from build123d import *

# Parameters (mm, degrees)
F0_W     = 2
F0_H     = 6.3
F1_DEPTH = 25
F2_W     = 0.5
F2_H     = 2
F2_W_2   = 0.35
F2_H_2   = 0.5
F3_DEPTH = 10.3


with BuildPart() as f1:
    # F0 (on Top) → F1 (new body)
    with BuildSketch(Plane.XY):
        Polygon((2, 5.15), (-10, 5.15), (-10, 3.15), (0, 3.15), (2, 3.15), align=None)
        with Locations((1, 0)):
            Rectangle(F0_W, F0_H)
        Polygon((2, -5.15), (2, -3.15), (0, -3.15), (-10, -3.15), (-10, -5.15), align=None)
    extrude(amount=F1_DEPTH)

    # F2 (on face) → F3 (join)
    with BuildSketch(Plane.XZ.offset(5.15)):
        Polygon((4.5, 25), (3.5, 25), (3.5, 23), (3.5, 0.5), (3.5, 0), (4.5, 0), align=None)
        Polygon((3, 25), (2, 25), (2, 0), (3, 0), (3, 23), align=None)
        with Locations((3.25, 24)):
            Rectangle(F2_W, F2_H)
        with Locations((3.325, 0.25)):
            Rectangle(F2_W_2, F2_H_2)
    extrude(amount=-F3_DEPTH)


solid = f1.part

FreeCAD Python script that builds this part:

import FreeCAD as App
import Part
import Sketcher
Q = App.Units.Quantity


def add_polygon(sketch, points):
    """Adds a closed chain of lines whose ends are joined by coincident constraints."""
    first, n = sketch.GeometryCount, len(points)
    for a, b in zip(points, points[1:] + points[:1]):
        sketch.addGeometry(Part.LineSegment(App.Vector(*a, 0), App.Vector(*b, 0)), False)
    for i in range(n):
        sketch.addConstraint(Sketcher.Constraint("Coincident", first + i, 2, first + (i + 1) % n, 1))

doc = App.newDocument("Part")
body = doc.addObject("PartDesign::Body", "Body")

sketch1 = body.newObject("Sketcher::SketchObject", "Sketch")
sketch1.AttachmentSupport = (doc.getObject("XY_Plane"), [""])
sketch1.MapMode = "FlatFace"
add_polygon(sketch1, [(2, 5.2), (-10, 5.2), (-10, 3.1), (0, 3.1), (0, -3.1), (-10, -3.1), (-10, -5.2), (2, -5.2)])
sketch1.addConstraint([
    Sketcher.Constraint("Horizontal", 0),
    Sketcher.Constraint("Vertical", 1),
    Sketcher.Constraint("Horizontal", 2),
    Sketcher.Constraint("Vertical", 3),
    Sketcher.Constraint("Horizontal", 4),
    Sketcher.Constraint("Vertical", 5),
    Sketcher.Constraint("Horizontal", 6),
    Sketcher.Constraint("Vertical", 7),
    Sketcher.Constraint("Symmetric", 2, 2, 3, 2, -1, 1),
    Sketcher.Constraint("Symmetric", 0, 2, 5, 2, -1),
    Sketcher.Constraint("DistanceX", 0, 2, 0, 1, Q("12 mm")),
    Sketcher.Constraint("DistanceX", 2, 1, 2, 2, Q("10 mm")),
    Sketcher.Constraint("DistanceY", 1, 2, 1, 1, Q("2 mm")),
    Sketcher.Constraint("DistanceY", 3, 2, 3, 1, Q("6.3 mm")),
])
pad1 = body.newObject("PartDesign::Pad", "Pad")
pad1.Profile = sketch1
pad1.Length = 25

sketch2 = body.newObject("Sketcher::SketchObject", "Sketch001")
sketch2.AttachmentSupport = (doc.getObject("XZ_Plane"), [""])
sketch2.MapMode = "FlatFace"
sketch2.AttachmentOffset = App.Placement(App.Vector(0, 0, 5.15), App.Rotation())
add_polygon(sketch2, [(4.5, 25), (2, 25), (2, 0), (3, 0), (3, 23), (3.5, 23), (3.5, 0.5), (3.15, 0.5), (3.15, 0), (4.5, 0)])
sketch2.addConstraint([
    Sketcher.Constraint("Horizontal", 0),
    Sketcher.Constraint("Vertical", 1),
    Sketcher.Constraint("Horizontal", 2),
    Sketcher.Constraint("Vertical", 3),
    Sketcher.Constraint("Horizontal", 4),
    Sketcher.Constraint("Vertical", 5),
    Sketcher.Constraint("Horizontal", 6),
    Sketcher.Constraint("Vertical", 7),
    Sketcher.Constraint("Horizontal", 8),
    Sketcher.Constraint("Vertical", 9),
    Sketcher.Constraint("PointOnObject", 1, 2, -1),
    Sketcher.Constraint("PointOnObject", 7, 2, -1),
    Sketcher.Constraint("Equal", 4, 7),
    Sketcher.Constraint("DistanceX", 2, 1, 2, 2, Q("1 mm")),
    Sketcher.Constraint("DistanceY", 1, 2, 1, 1, Q("25 mm")),
    Sketcher.Constraint("DistanceY", 3, 1, 3, 2, Q("23 mm")),
    Sketcher.Constraint("DistanceX", 0, 2, 0, 1, Q("2.5 mm")),
    Sketcher.Constraint("DistanceX", 4, 1, 4, 2, Q("0.5 mm")),
    Sketcher.Constraint("DistanceX", -1, 1, 0, 2, Q("2 mm")),
    Sketcher.Constraint("DistanceX", 6, 2, 6, 1, Q("0.35 mm")),
])
pad2 = body.newObject("PartDesign::Pad", "Pad001")
pad2.Profile = sketch2
pad2.Length = 10.3
pad2.Reversed = True

doc.recompute()
